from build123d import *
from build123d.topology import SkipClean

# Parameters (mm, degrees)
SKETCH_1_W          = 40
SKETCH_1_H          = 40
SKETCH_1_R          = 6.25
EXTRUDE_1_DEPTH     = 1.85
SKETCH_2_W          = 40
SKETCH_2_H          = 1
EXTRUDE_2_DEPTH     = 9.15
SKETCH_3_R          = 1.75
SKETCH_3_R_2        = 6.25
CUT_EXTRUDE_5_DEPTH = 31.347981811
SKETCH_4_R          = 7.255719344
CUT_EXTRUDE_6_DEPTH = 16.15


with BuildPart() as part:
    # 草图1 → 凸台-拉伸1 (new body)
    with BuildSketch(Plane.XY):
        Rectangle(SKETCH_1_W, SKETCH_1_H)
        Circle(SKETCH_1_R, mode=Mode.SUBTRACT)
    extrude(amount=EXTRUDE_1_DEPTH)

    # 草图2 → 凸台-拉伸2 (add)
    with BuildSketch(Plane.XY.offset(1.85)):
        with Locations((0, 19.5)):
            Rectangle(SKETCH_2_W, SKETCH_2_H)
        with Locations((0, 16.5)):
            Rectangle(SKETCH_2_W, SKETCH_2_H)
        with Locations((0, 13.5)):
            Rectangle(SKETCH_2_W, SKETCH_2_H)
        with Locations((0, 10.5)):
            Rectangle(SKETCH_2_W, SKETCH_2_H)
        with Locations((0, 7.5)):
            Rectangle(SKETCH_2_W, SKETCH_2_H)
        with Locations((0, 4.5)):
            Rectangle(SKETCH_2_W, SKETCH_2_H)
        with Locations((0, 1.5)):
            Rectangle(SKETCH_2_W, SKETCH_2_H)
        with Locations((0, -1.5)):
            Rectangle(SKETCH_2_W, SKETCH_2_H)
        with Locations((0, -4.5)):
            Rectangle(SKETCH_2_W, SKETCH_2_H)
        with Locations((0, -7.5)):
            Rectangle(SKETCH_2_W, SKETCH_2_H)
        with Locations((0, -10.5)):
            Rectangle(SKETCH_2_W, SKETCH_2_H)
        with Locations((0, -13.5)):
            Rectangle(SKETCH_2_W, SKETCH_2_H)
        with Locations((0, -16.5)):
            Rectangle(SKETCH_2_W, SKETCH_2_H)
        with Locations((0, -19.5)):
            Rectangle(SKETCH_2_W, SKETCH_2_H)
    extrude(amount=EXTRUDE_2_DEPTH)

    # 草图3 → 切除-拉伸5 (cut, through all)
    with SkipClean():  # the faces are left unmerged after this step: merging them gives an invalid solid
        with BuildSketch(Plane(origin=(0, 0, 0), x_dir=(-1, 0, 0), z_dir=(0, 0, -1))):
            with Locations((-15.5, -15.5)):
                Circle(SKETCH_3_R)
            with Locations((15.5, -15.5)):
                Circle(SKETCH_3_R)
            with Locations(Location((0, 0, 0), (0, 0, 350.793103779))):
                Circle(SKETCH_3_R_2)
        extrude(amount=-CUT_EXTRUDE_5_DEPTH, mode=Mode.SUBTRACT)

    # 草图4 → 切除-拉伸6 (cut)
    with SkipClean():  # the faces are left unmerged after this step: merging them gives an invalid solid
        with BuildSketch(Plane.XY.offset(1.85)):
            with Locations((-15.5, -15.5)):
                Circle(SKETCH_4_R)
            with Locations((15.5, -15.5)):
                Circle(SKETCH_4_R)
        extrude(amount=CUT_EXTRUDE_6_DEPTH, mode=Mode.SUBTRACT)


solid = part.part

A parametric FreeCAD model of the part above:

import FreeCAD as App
import Part
import Sketcher
from FreeCAD import Vector

doc = App.newDocument("Part")
params = doc.addObject("Spreadsheet::Sheet", "Params")
for row, (alias, value) in enumerate([
    ("sketch1_diameter", "12.5 mm"),
    ("sketch1_width", "40 mm"),
    ("pad1_length", "1.85 mm"),
    ("sketch2_width", "40 mm"),
    ("sketch2_height", "1 mm"),
    ("pad2_length", "9.15 mm"),
    ("sketch3_diameter", "3.5 mm"),
    ("sketch3_diameter2", "12.5 mm"),
    ("pocket2_length", "16.15 mm"),
], start=1):
    params.set(f"A{row}", alias)
    params.set(f"B{row}", "=" + value)
    params.setAlias(f"B{row}", alias)

body = doc.addObject("PartDesign::Body", "Body")

# Sketch on XY plane
sketch1 = doc.addObject("Sketcher::SketchObject", "Sketch")
body.addObject(sketch1)
sketch1.AttachmentSupport = (doc.XY_Plane, [""])
sketch1.MapMode = "FlatFace"
sketch1.addGeometry(Part.LineSegment(Vector(-20, 20, 0), Vector(-20, -20, 0)), False)
sketch1.addGeometry(Part.LineSegment(Vector(-20, -20, 0), Vector(20, -20, 0)), False)
sketch1.addGeometry(Part.LineSegment(Vector(20, -20, 0), Vector(20, 20, 0)), False)
sketch1.addGeometry(Part.LineSegment(Vector(20, 20, 0), Vector(-20, 20, 0)), False)
sketch1.addGeometry(Part.Circle(Vector(0, 0, 0), Vector(0, 0, 1), 6), False)
sketch1.addConstraint(Sketcher.Constraint("Coincident", 0, 2, 1, 1))
sketch1.addConstraint(Sketcher.Constraint("Coincident", 1, 2, 2, 1))
sketch1.addConstraint(Sketcher.Constraint("Coincident", 2, 2, 3, 1))
sketch1.addConstraint(Sketcher.Constraint("Coincident", 3, 2, 0, 1))
sketch1.addConstraint(Sketcher.Constraint("Vertical", 0))
sketch1.addConstraint(Sketcher.Constraint("Horizontal", 1))
sketch1.addConstraint(Sketcher.Constraint("Vertical", 2))
sketch1.addConstraint(Sketcher.Constraint("Horizontal", 3))
sketch1.addConstraint(Sketcher.Constraint("Coincident", 4, 3, -1, 1))
sketch1.addConstraint(Sketcher.Constraint("Symmetric", 0, 2, 2, 2, -1, 1))
sketch1.addConstraint(Sketcher.Constraint("Equal", 3, 0))
sketch1.addConstraint(Sketcher.Constraint("Diameter", 4, 12.5))
sketch1.addConstraint(Sketcher.Constraint("DistanceX", 1, 1, 1, 2, 40.0))
sketch1.setExpression("Constraints[11]", "Params.sketch1_diameter")
sketch1.setExpression("Constraints[12]", "Params.sketch1_width")
pad1 = doc.addObject("PartDesign::Pad", "Pad")
body.addObject(pad1)
pad1.Profile = sketch1
pad1.setExpression("Length", "Params.pad1_length")

# Sketch on XY plane
sketch2 = doc.addObject("Sketcher::SketchObject", "Sketch001")
body.addObject(sketch2)
sketch2.AttachmentSupport = (doc.XY_Plane, [""])
sketch2.MapMode = "FlatFace"
sketch2.AttachmentOffset = App.Placement(Vector(0, 0, 1.85), App.Rotation())
sketch2.addGeometry(Part.LineSegment(Vector(-20, 20, 0), Vector(-20, 19, 0)), False)
sketch2.addGeometry(Part.LineSegment(Vector(-20, 19, 0), Vector(20, 19, 0)), False)
sketch2.addGeometry(Part.LineSegment(Vector(20, 19, 0), Vector(20, 20, 0)), False)
sketch2.addGeometry(Part.LineSegment(Vector(20, 20, 0), Vector(-20, 20, 0)), False)
sketch2.addGeometry(Part.LineSegment(Vector(-20, 17, 0), Vector(-20, 16, 0)), False)
sketch2.addGeometry(Part.LineSegment(Vector(-20, 16, 0), Vector(20, 16, 0)), False)
sketch2.addGeometry(Part.LineSegment(Vector(20, 16, 0), Vector(20, 17, 0)), False)
sketch2.addGeometry(Part.LineSegment(Vector(20, 17, 0), Vector(-20, 17, 0)), False)
sketch2.addGeometry(Part.LineSegment(Vector(-20, 14, 0), Vector(-20, 13, 0)), False)
sketch2.addGeometry(Part.LineSegment(Vector(-20, 13, 0), Vector(20, 13, 0)), False)
sketch2.addGeometry(Part.LineSegment(Vector(20, 13, 0), Vector(20, 14, 0)), False)
sketch2.addGeometry(Part.LineSegment(Vector(20, 14, 0), Vector(-20, 14, 0)), False)
sketch2.addGeometry(Part.LineSegment(Vector(-20, 11, 0), Vector(-20, 10, 0)), False)
sketch2.addGeometry(Part.LineSegment(Vector(-20, 10, 0), Vector(20, 10, 0)), False)
sketch2.addGeometry(Part.LineSegment(Vector(20, 10, 0), Vector(20, 11, 0)), False)
sketch2.addGeometry(Part.LineSegment(Vector(20, 11, 0), Vector(-20, 11, 0)), False)
sketch2.addGeometry(Part.LineSegment(Vector(-20, 8, 0), Vector(-20, 7, 0)), False)
sketch2.addGeometry(Part.LineSegment(Vector(-20, 7, 0), Vector(20, 7, 0)), False)
sketch2.addGeometry(Part.LineSegment(Vector(20, 7, 0), Vector(20, 8, 0)), False)
sketch2.addGeometry(Part.LineSegment(Vector(20, 8, 0), Vector(-20, 8, 0)), False)
sketch2.addGeometry(Part.LineSegment(Vector(-20, 5, 0), Vector(-20, 4, 0)), False)
sketch2.addGeometry(Part.LineSegment(Vector(-20, 4, 0), Vector(20, 4, 0)), False)
sketch2.addGeometry(Part.LineSegment(Vector(20, 4, 0), Vector(20, 5, 0)), False)
sketch2.addGeometry(Part.LineSegment(Vector(20, 5, 0), Vector(-20, 5, 0)), False)
sketch2.addGeometry(Part.LineSegment(Vector(-20, 2, 0), Vector(-20, 1, 0)), False)
sketch2.addGeometry(Part.LineSegment(Vector(-20, 1, 0), Vector(20, 1, 0)), False)
sketch2.addGeometry(Part.LineSegment(Vector(20, 1, 0), Vector(20, 2, 0)), False)
sketch2.addGeometry(Part.LineSegment(Vector(20, 2, 0), Vector(-20, 2, 0)), False)
sketch2.addGeometry(Part.LineSegment(Vector(-20, -1, 0), Vector(-20, -2, 0)), False)
sketch2.addGeometry(Part.LineSegment(Vector(-20, -2, 0), Vector(20, -2, 0)), False)
sketch2.addGeometry(Part.LineSegment(Vector(20, -2, 0), Vector(20, -1, 0)), False)
sketch2.addGeometry(Part.LineSegment(Vector(20, -1, 0), Vector(-20, -1, 0)), False)
sketch2.addGeometry(Part.LineSegment(Vector(-20, -4, 0), Vector(-20, -5, 0)), False)
sketch2.addGeometry(Part.LineSegment(Vector(-20, -5, 0), Vector(20, -5, 0)), False)
sketch2.addGeometry(Part.LineSegment(Vector(20, -5, 0), Vector(20, -4, 0)), False)
sketch2.addGeometry(Part.LineSegment(Vector(20, -4, 0), Vector(-20, -4, 0)), False)
sketch2.addGeometry(Part.LineSegment(Vector(-20, -7, 0), Vector(-20, -8, 0)), False)
sketch2.addGeometry(Part.LineSegment(Vector(-20, -8, 0), Vector(20, -8, 0)), False)
sketch2.addGeometry(Part.LineSegment(Vector(20, -8, 0), Vector(20, -7, 0)), False)
sketch2.addGeometry(Part.LineSegment(Vector(20, -7, 0), Vector(-20, -7, 0)), False)
sketch2.addGeometry(Part.LineSegment(Vector(-20, -10, 0), Vector(-20, -11, 0)), False)
sketch2.addGeometry(Part.LineSegment(Vector(-20, -11, 0), Vector(20, -11, 0)), False)
sketch2.addGeometry(Part.LineSegment(Vector(20, -11, 0), Vector(20, -10, 0)), False)
sketch2.addGeometry(Part.LineSegment(Vector(20, -10, 0), Vector(-20, -10, 0)), False)
sketch2.addGeometry(Part.LineSegment(Vector(-20, -13, 0), Vector(-20, -14, 0)), False)
sketch2.addGeometry(Part.LineSegment(Vector(-20, -14, 0), Vector(20, -14, 0)), False)
sketch2.addGeometry(Part.LineSegment(Vector(20, -14, 0), Vector(20, -13, 0)), False)
sketch2.addGeometry(Part.LineSegment(Vector(20, -13, 0), Vector(-20, -13, 0)), False)
sketch2.addGeometry(Part.LineSegment(Vector(-20, -16, 0), Vector(-20, -17, 0)), False)
sketch2.addGeometry(Part.LineSegment(Vector(-20, -17, 0), Vector(20, -17, 0)), False)
sketch2.addGeometry(Part.LineSegment(Vector(20, -17, 0), Vector(20, -16, 0)), False)
sketch2.addGeometry(Part.LineSegment(Vector(20, -16, 0), Vector(-20, -16, 0)), False)
sketch2.addGeometry(Part.LineSegment(Vector(-20, -19, 0), Vector(-20, -20, 0)), False)
sketch2.addGeometry(Part.LineSegment(Vector(-20, -20, 0), Vector(20, -20, 0)), False)
sketch2.addGeometry(Part.LineSegment(Vector(20, -20, 0), Vector(20, -19, 0)), False)
sketch2.addGeometry(Part.LineSegment(Vector(20, -19, 0), Vector(-20, -19, 0)), False)
sketch2.addConstraint(Sketcher.Constraint("Coincident", 0, 2, 1, 1))
sketch2.addConstraint(Sketcher.Constraint("Coincident", 1, 2, 2, 1))
sketch2.addConstraint(Sketcher.Constraint("Coincident", 2, 2, 3, 1))
sketch2.addConstraint(Sketcher.Constraint("Coincident", 3, 2, 0, 1))
sketch2.addConstraint(Sketcher.Constraint("Coincident", 4, 2, 5, 1))
sketch2.addConstraint(Sketcher.Constraint("Coincident", 5, 2, 6, 1))
sketch2.addConstraint(Sketcher.Constraint("Coincident", 6, 2, 7, 1))
sketch2.addConstraint(Sketcher.Constraint("Coincident", 7, 2, 4, 1))
sketch2.addConstraint(Sketcher.Constraint("Coincident", 8, 2, 9, 1))
sketch2.addConstraint(Sketcher.Constraint("Coincident", 9, 2, 10, 1))
sketch2.addConstraint(Sketcher.Constraint("Coincident", 10, 2, 11, 1))
sketch2.addConstraint(Sketcher.Constraint("Coincident", 11, 2, 8, 1))
sketch2.addConstraint(Sketcher.Constraint("Coincident", 12, 2, 13, 1))
sketch2.addConstraint(Sketcher.Constraint("Coincident", 13, 2, 14, 1))
sketch2.addConstraint(Sketcher.Constraint("Coincident", 14, 2, 15, 1))
sketch2.addConstraint(Sketcher.Constraint("Coincident", 15, 2, 12, 1))
sketch2.addConstraint(Sketcher.Constraint("Coincident", 16, 2, 17, 1))
sketch2.addConstraint(Sketcher.Constraint("Coincident", 17, 2, 18, 1))
sketch2.addConstraint(Sketcher.Constraint("Coincident", 18, 2, 19, 1))
sketch2.addConstraint(Sketcher.Constraint("Coincident", 19, 2, 16, 1))
sketch2.addConstraint(Sketcher.Constraint("Coincident", 20, 2, 21, 1))
sketch2.addConstraint(Sketcher.Constraint("Coincident", 21, 2, 22, 1))
sketch2.addConstraint(Sketcher.Constraint("Coincident", 22, 2, 23, 1))
sketch2.addConstraint(Sketcher.Constraint("Coincident", 23, 2, 20, 1))
sketch2.addConstraint(Sketcher.Constraint("Coincident", 24, 2, 25, 1))
sketch2.addConstraint(Sketcher.Constraint("Coincident", 25, 2, 26, 1))
sketch2.addConstraint(Sketcher.Constraint("Coincident", 26, 2, 27, 1))
sketch2.addConstraint(Sketcher.Constraint("Coincident", 27, 2, 24, 1))
sketch2.addConstraint(Sketcher.Constraint("Coincident", 28, 2, 29, 1))
sketch2.addConstraint(Sketcher.Constraint("Coincident", 29, 2, 30, 1))
sketch2.addConstraint(Sketcher.Constraint("Coincident", 30, 2, 31, 1))
sketch2.addConstraint(Sketcher.Constraint("Coincident", 31, 2, 28, 1))
sketch2.addConstraint(Sketcher.Constraint("Coincident", 32, 2, 33, 1))
sketch2.addConstraint(Sketcher.Constraint("Coincident", 33, 2, 34, 1))
sketch2.addConstraint(Sketcher.Constraint("Coincident", 34, 2, 35, 1))
sketch2.addConstraint(Sketcher.Constraint("Coincident", 35, 2, 32, 1))
sketch2.addConstraint(Sketcher.Constraint("Coincident", 36, 2, 37, 1))
sketch2.addConstraint(Sketcher.Constraint("Coincident", 37, 2, 38, 1))
sketch2.addConstraint(Sketcher.Constraint("Coincident", 38, 2, 39, 1))
sketch2.addConstraint(Sketcher.Constraint("Coincident", 39, 2, 36, 1))
sketch2.addConstraint(Sketcher.Constraint("Coincident", 40, 2, 41, 1))
sketch2.addConstraint(Sketcher.Constraint("Coincident", 41, 2, 42, 1))
sketch2.addConstraint(Sketcher.Constraint("Coincident", 42, 2, 43, 1))
sketch2.addConstraint(Sketcher.Constraint("Coincident", 43, 2, 40, 1))
sketch2.addConstraint(Sketcher.Constraint("Coincident", 44, 2, 45, 1))
sketch2.addConstraint(Sketcher.Constraint("Coincident", 45, 2, 46, 1))
sketch2.addConstraint(Sketcher.Constraint("Coincident", 46, 2, 47, 1))
sketch2.addConstraint(Sketcher.Constraint("Coincident", 47, 2, 44, 1))
sketch2.addConstraint(Sketcher.Constraint("Coincident", 48, 2, 49, 1))
sketch2.addConstraint(Sketcher.Constraint("Coincident", 49, 2, 50, 1))
sketch2.addConstraint(Sketcher.Constraint("Coincident", 50, 2, 51, 1))
sketch2.addConstraint(Sketcher.Constraint("Coincident", 51, 2, 48, 1))
sketch2.addConstraint(Sketcher.Constraint("Coincident", 52, 2, 53, 1))
sketch2.addConstraint(Sketcher.Constraint("Coincident", 53, 2, 54, 1))
sketch2.addConstraint(Sketcher.Constraint("Coincident", 54, 2, 55, 1))
sketch2.addConstraint(Sketcher.Constraint("Coincident", 55, 2, 52, 1))
sketch2.addConstraint(Sketcher.Constraint("Vertical", 0))
sketch2.addConstraint(Sketcher.Constraint("Horizontal", 1))
sketch2.addConstraint(Sketcher.Constraint("Vertical", 2))
sketch2.addConstraint(Sketcher.Constraint("Horizontal", 3))
sketch2.addConstraint(Sketcher.Constraint("Vertical", 4))
sketch2.addConstraint(Sketcher.Constraint("Horizontal", 5))
sketch2.addConstraint(Sketcher.Constraint("Vertical", 6))
sketch2.addConstraint(Sketcher.Constraint("Horizontal", 7))
sketch2.addConstraint(Sketcher.Constraint("Vertical", 8))
sketch2.addConstraint(Sketcher.Constraint("Horizontal", 9))
sketch2.addConstraint(Sketcher.Constraint("Vertical", 10))
sketch2.addConstraint(Sketcher.Constraint("Horizontal", 11))
sketch2.addConstraint(Sketcher.Constraint("Vertical", 12))
sketch2.addConstraint(Sketcher.Constraint("Horizontal", 13))
sketch2.addConstraint(Sketcher.Constraint("Vertical", 14))
sketch2.addConstraint(Sketcher.Constraint("Horizontal", 15))
sketch2.addConstraint(Sketcher.Constraint("Vertical", 16))
sketch2.addConstraint(Sketcher.Constraint("Horizontal", 17))
sketch2.addConstraint(Sketcher.Constraint("Vertical", 18))
sketch2.addConstraint(Sketcher.Constraint("Horizontal", 19))
sketch2.addConstraint(Sketcher.Constraint("Vertical", 20))
sketch2.addConstraint(Sketcher.Constraint("Horizontal", 21))
sketch2.addConstraint(Sketcher.Constraint("Vertical", 22))
sketch2.addConstraint(Sketcher.Constraint("Horizontal", 23))
sketch2.addConstraint(Sketcher.Constraint("Vertical", 24))
sketch2.addConstraint(Sketcher.Constraint("Horizontal", 25))
sketch2.addConstraint(Sketcher.Constraint("Vertical", 26))
sketch2.addConstraint(Sketcher.Constraint("Horizontal", 27))
sketch2.addConstraint(Sketcher.Constraint("Vertical", 28))
sketch2.addConstraint(Sketcher.Constraint("Horizontal", 29))
sketch2.addConstraint(Sketcher.Constraint("Vertical", 30))
sketch2.addConstraint(Sketcher.Constraint("Horizontal", 31))
sketch2.addConstraint(Sketcher.Constraint("Vertical", 32))
sketch2.addConstraint(Sketcher.Constraint("Horizontal", 33))
sketch2.addConstraint(Sketcher.Constraint("Vertical", 34))
sketch2.addConstraint(Sketcher.Constraint("Horizontal", 35))
sketch2.addConstraint(Sketcher.Constraint("Vertical", 36))
sketch2.addConstraint(Sketcher.Constraint("Horizontal", 37))
sketch2.addConstraint(Sketcher.Constraint("Vertical", 38))
sketch2.addConstraint(Sketcher.Constraint("Horizontal", 39))
sketch2.addConstraint(Sketcher.Constraint("Vertical", 40))
sketch2.addConstraint(Sketcher.Constraint("Horizontal", 41))
sketch2.addConstraint(Sketcher.Constraint("Vertical", 42))
sketch2.addConstraint(Sketcher.Constraint("Horizontal", 43))
sketch2.addConstraint(Sketcher.Constraint("Vertical", 44))
sketch2.addConstraint(Sketcher.Constraint("Horizontal", 45))
sketch2.addConstraint(Sketcher.Constraint("Vertical", 46))
sketch2.addConstraint(Sketcher.Constraint("Horizontal", 47))
sketch2.addConstraint(Sketcher.Constraint("Vertical", 48))
sketch2.addConstraint(Sketcher.Constraint("Horizontal", 49))
sketch2.addConstraint(Sketcher.Constraint("Vertical", 50))
sketch2.addConstraint(Sketcher.Constraint("Horizontal", 51))
sketch2.addConstraint(Sketcher.Constraint("Vertical", 52))
sketch2.addConstraint(Sketcher.Constraint("Horizontal", 53))
sketch2.addConstraint(Sketcher.Constraint("Vertical", 54))
sketch2.addConstraint(Sketcher.Constraint("Horizontal", 55))
sketch2.addConstraint(Sketcher.Constraint("Symmetric", 26, 2, 28, 2, -1, 1))
sketch2.addConstraint(Sketcher.Constraint("Symmetric", 24, 2, 30, 2, -1, 1))
sketch2.addConstraint(Sketcher.Constraint("Symmetric", 22, 2, 32, 2, -1, 1))
sketch2.addConstraint(Sketcher.Constraint("Symmetric", 20, 2, 34, 2, -1, 1))
sketch2.addConstraint(Sketcher.Constraint("Symmetric", 18, 2, 36, 2, -1, 1))
sketch2.addConstraint(Sketcher.Constraint("Symmetric", 16, 2, 38, 2, -1, 1))
sketch2.addConstraint(Sketcher.Constraint("Symmetric", 14, 2, 40, 2, -1, 1))
sketch2.addConstraint(Sketcher.Constraint("Symmetric", 12, 2, 42, 2, -1, 1))
sketch2.addConstraint(Sketcher.Constraint("Symmetric", 10, 2, 44, 2, -1, 1))
sketch2.addConstraint(Sketcher.Constraint("Symmetric", 8, 2, 46, 2, -1, 1))
sketch2.addConstraint(Sketcher.Constraint("Symmetric", 6, 2, 48, 2, -1, 1))
sketch2.addConstraint(Sketcher.Constraint("Symmetric", 4, 2, 50, 2, -1, 1))
sketch2.addConstraint(Sketcher.Constraint("Symmetric", 2, 2, 52, 2, -1, 1))
sketch2.addConstraint(Sketcher.Constraint("Symmetric", 0, 2, 54, 2, -1, 1))
sketch2.addConstraint(Sketcher.Constraint("Vertical", 3, 2, 4, 2))
sketch2.addConstraint(Sketcher.Constraint("Vertical", 2, 2, 5, 2))
sketch2.addConstraint(Sketcher.Constraint("Vertical", 7, 2, 8, 2))
sketch2.addConstraint(Sketcher.Constraint("Vertical", 6, 2, 9, 2))
sketch2.addConstraint(Sketcher.Constraint("Vertical", 11, 2, 12, 2))
sketch2.addConstraint(Sketcher.Constraint("Vertical", 10, 2, 13, 2))
sketch2.addConstraint(Sketcher.Constraint("Vertical", 15, 2, 16, 2))
sketch2.addConstraint(Sketcher.Constraint("Vertical", 14, 2, 17, 2))
sketch2.addConstraint(Sketcher.Constraint("Vertical", 19, 2, 20, 2))
sketch2.addConstraint(Sketcher.Constraint("Vertical", 18, 2, 21, 2))
sketch2.addConstraint(Sketcher.Constraint("Vertical", 23, 2, 24, 2))
sketch2.addConstraint(Sketcher.Constraint("Vertical", 22, 2, 25, 2))
sketch2.addConstraint(Sketcher.Constraint("Vertical", 27, 2, 28, 2))
sketch2.addConstraint(Sketcher.Constraint("Equal", 2, 4))
sketch2.addConstraint(Sketcher.Constraint("Equal", 6, 8))
sketch2.addConstraint(Sketcher.Constraint("Equal", 10, 12))
sketch2.addConstraint(Sketcher.Constraint("Equal", 14, 16))
sketch2.addConstraint(Sketcher.Constraint("Equal", 18, 20))
sketch2.addConstraint(Sketcher.Constraint("Equal", 22, 24))
sketch2.addConstraint(Sketcher.Constraint("DistanceX", 1, 1, 1, 2, 40.0))
sketch2.addConstraint(Sketcher.Constraint("DistanceY", 0, 2, 0, 1, 1.0))
sketch2.addConstraint(Sketcher.Constraint("DistanceY", -1, 1, 0, 2, 19.0))
sketch2.addConstraint(Sketcher.Constraint("DistanceY", -1, 1, 4, 2, 16.0))
sketch2.addConstraint(Sketcher.Constraint("DistanceY", -1, 1, 8, 2, 13.0))
sketch2.addConstraint(Sketcher.Constraint("DistanceY", -1, 1, 12, 2, 10.0))
sketch2.addConstraint(Sketcher.Constraint("DistanceY", -1, 1, 16, 2, 7.0))
sketch2.addConstraint(Sketcher.Constraint("DistanceY", -1, 1, 20, 2, 4.0))
sketch2.addConstraint(Sketcher.Constraint("DistanceY", -1, 1, 24, 2, 1.0))
sketch2.setExpression("Constraints[145]", "Params.sketch2_width")
sketch2.setExpression("Constraints[146]", "Params.sketch2_height")
pad2 = doc.addObject("PartDesign::Pad", "Pad001")
body.addObject(pad2)
pad2.Profile = sketch2
pad2.setExpression("Length", "Params.pad2_length")

# Sketch on XY plane
sketch3 = doc.addObject("Sketcher::SketchObject", "Sketch002")
body.addObject(sketch3)
sketch3.AttachmentSupport = (doc.XY_Plane, [""])
sketch3.MapMode = "FlatFace"
sketch3.addGeometry(Part.Circle(Vector(15.5, -15.5, 0), Vector(0, 0, 1), 1.8), False)
sketch3.addGeometry(Part.Circle(Vector(-15.5, -15.5, 0), Vector(0, 0, 1), 1.8), False)
sketch3.addGeometry(Part.Circle(Vector(0, 0, 0), Vector(0, 0, 1), 6.2), False)
sketch3.addConstraint(Sketcher.Constraint("Coincident", 2, 3, -1, 1))
sketch3.addConstraint(Sketcher.Constraint("Equal", 0, 1))
sketch3.addConstraint(Sketcher.Constraint("Symmetric", 0, 3, 1, 3, -2))
sketch3.addConstraint(Sketcher.Constraint("Diameter", 0, 3.5))
sketch3.addConstraint(Sketcher.Constraint("Diameter", 2, 12.5))
sketch3.addConstraint(Sketcher.Constraint("DistanceX", 1, 3, 0, 3, 31.0))
sketch3.addConstraint(Sketcher.Constraint("DistanceY", 0, 3, -1, 1, 15.5))
sketch3.setExpression("Constraints[3]", "Params.sketch3_diameter")
sketch3.setExpression("Constraints[4]", "Params.sketch3_diameter2")
pocket1 = doc.addObject("PartDesign::Pocket", "Pocket")
body.addObject(pocket1)
pocket1.Profile = sketch3
pocket1.Type = "ThroughAll"
pocket1.Reversed = True

# Sketch on XY plane
sketch4 = doc.addObject("Sketcher::SketchObject", "Sketch003")
body.addObject(sketch4)
sketch4.AttachmentSupport = (doc.XY_Plane, [""])
sketch4.MapMode = "FlatFace"
sketch4.AttachmentOffset = App.Placement(Vector(0, 0, 1.85), App.Rotation())
sketch4.addGeometry(Part.Circle(Vector(-16, -16, 0), Vector(0, 0, 1), 7), False)
sketch4.addGeometry(Part.Circle(Vector(16, -16, 0), Vector(0, 0, 1), 7), False)
sketch4.addConstraint(Sketcher.Constraint("Equal", 0, 1))
sketch4.addConstraint(Sketcher.Constraint("Symmetric", 0, 3, 1, 3, -2))
sketch4.addConstraint(Sketcher.Constraint("DistanceX", 0, 3, 1, 3, 31.0))
sketch4.addConstraint(Sketcher.Constraint("DistanceY", 0, 3, -1, 1, 15.5))
sketch4.addConstraint(Sketcher.Constraint("Diameter", 0, 14.511439))
pocket2 = doc.addObject("PartDesign::Pocket", "Pocket001")
body.addObject(pocket2)
pocket2.Profile = sketch4
pocket2.setExpression("Length", "Params.pocket2_length")
pocket2.Reversed = True

doc.recompute()
